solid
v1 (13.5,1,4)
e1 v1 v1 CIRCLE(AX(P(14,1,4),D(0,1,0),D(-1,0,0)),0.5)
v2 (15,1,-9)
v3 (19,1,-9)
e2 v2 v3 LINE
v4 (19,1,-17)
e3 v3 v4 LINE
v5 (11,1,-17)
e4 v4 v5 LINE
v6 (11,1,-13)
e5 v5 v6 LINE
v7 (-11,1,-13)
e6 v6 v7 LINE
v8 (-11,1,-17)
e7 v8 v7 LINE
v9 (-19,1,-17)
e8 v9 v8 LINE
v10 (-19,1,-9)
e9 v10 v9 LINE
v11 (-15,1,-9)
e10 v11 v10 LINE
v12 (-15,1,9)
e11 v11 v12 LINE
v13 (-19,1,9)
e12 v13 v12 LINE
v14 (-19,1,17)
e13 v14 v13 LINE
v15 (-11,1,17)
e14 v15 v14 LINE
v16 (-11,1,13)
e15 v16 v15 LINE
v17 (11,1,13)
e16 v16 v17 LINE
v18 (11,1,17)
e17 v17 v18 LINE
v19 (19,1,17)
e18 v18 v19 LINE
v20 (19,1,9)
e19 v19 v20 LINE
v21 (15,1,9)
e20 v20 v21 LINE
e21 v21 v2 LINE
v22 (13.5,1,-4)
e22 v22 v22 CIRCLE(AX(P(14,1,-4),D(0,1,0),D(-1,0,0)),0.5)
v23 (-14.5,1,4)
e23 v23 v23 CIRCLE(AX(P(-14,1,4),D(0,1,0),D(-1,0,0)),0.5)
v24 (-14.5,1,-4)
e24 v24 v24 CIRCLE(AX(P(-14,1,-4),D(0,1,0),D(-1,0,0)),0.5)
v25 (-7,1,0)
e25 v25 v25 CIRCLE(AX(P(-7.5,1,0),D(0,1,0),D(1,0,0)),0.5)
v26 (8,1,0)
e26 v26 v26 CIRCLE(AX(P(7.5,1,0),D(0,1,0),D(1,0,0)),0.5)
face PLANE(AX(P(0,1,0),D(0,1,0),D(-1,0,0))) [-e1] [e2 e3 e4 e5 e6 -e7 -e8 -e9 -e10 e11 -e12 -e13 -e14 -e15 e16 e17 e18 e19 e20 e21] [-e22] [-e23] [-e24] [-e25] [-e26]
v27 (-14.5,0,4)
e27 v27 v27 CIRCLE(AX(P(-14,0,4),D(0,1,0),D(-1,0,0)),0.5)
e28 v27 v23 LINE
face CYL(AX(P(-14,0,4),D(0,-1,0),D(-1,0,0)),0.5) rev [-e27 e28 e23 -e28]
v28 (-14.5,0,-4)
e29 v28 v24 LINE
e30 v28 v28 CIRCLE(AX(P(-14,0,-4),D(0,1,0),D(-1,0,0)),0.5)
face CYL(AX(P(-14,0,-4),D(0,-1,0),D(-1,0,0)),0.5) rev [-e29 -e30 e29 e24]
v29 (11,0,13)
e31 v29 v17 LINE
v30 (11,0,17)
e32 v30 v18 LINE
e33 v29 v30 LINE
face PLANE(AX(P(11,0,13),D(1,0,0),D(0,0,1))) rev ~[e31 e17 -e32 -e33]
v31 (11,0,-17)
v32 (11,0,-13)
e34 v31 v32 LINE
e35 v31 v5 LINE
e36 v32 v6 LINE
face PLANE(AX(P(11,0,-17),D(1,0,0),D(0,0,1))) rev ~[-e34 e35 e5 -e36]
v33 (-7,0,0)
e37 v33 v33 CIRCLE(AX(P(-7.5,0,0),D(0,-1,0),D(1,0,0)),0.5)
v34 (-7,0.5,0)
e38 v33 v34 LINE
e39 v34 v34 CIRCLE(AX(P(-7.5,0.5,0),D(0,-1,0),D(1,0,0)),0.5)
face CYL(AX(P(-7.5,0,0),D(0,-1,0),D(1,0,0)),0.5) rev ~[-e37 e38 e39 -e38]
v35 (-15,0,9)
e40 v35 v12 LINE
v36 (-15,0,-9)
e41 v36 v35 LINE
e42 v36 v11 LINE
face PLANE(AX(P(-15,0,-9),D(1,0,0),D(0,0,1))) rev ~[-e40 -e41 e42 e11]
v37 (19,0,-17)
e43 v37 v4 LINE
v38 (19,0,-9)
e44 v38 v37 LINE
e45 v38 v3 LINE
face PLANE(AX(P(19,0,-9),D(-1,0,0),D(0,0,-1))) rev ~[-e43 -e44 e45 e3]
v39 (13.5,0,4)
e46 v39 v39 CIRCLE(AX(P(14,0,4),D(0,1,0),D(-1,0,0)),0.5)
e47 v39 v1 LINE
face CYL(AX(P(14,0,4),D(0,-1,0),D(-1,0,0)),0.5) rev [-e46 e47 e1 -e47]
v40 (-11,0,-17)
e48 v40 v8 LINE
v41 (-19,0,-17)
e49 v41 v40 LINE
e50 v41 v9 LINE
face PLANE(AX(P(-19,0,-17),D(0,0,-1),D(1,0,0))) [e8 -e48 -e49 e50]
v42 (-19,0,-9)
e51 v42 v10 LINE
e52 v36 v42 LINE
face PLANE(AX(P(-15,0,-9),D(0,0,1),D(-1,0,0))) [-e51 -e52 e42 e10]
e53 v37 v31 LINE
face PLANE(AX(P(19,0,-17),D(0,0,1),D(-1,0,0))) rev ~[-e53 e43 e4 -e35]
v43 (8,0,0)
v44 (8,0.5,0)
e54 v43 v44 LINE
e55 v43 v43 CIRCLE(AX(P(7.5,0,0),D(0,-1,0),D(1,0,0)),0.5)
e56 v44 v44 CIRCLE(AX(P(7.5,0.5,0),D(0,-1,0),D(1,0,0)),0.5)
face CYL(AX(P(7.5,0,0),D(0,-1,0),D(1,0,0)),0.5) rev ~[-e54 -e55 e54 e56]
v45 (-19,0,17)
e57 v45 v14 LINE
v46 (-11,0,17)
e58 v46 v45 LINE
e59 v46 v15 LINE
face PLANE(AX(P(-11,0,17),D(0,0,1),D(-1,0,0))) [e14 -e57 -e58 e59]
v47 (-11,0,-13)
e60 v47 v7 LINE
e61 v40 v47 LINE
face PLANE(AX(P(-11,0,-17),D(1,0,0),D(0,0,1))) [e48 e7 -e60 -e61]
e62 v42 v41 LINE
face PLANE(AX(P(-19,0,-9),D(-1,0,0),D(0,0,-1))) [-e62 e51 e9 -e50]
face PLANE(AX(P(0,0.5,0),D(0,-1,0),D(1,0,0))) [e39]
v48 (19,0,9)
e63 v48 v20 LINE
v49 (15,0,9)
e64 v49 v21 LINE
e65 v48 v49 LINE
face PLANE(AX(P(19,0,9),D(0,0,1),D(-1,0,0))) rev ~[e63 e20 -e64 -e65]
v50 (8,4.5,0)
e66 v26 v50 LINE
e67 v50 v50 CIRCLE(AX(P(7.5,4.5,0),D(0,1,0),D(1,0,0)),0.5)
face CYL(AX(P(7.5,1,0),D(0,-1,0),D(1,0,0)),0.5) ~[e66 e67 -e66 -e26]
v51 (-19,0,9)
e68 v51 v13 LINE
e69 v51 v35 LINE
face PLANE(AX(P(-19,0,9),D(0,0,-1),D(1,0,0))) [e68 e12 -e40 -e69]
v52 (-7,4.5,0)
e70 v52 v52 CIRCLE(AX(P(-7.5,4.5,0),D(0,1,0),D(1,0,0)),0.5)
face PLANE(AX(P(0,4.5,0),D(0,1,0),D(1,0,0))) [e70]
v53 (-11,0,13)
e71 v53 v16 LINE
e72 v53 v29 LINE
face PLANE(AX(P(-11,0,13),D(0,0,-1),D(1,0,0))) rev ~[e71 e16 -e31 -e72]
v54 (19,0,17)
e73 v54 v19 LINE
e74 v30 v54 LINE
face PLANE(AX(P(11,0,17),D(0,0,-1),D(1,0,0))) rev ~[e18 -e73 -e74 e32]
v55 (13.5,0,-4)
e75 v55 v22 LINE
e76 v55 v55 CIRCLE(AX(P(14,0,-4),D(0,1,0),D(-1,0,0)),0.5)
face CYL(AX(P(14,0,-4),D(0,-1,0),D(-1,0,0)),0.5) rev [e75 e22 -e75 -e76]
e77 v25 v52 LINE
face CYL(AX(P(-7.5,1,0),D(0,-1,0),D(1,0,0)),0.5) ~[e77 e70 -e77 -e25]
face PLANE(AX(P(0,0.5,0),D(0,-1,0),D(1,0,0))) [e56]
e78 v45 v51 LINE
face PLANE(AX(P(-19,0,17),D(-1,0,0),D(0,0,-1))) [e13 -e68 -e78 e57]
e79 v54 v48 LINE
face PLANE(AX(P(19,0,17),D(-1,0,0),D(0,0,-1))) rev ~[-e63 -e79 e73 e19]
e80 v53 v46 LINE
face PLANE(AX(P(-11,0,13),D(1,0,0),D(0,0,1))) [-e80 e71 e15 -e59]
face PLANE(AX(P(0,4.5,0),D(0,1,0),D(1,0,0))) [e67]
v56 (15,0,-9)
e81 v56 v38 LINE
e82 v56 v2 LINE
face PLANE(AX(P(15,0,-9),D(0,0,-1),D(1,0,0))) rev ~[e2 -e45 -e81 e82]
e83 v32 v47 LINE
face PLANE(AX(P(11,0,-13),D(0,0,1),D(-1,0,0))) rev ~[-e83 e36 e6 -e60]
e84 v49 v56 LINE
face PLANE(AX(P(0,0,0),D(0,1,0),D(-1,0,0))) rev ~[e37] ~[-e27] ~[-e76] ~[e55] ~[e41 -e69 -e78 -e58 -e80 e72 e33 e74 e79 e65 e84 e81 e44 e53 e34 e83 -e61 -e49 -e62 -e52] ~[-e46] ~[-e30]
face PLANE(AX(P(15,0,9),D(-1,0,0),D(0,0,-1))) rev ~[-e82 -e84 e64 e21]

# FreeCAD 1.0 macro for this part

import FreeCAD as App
import Part
import Sketcher

doc = App.newDocument("Part")
params = doc.addObject("Spreadsheet::Sheet", "Params")
for row, (alias, value) in enumerate([
    ("sketch1_diameter", "1 mm"),
    ("sketch1_width", "8 mm"),
    ("pad1_length", "1 mm"),
    ("sketch2_diameter", "1 mm"),
    ("pad2_length", "3.5 mm"),
    ("sketch3_diameter", "1 mm"),
    ("pocket1_length", "0.5 mm"),
], start=1):
    params.set(f"A{row}", alias)
    params.set(f"B{row}", "=" + value)
    params.setAlias(f"B{row}", alias)

body = doc.addObject("PartDesign::Body", "Body")

# Sketch on XZ plane
sketch1 = doc.addObject("Sketcher::SketchObject", "Sketch")
body.addObject(sketch1)
sketch1.AttachmentSupport = (doc.XZ_Plane, [""])
sketch1.MapMode = "FlatFace"
sketch1.addGeometry(Part.LineSegment(App.Vector(-15, 9, 0), App.Vector(-19, 9, 0)), False)
sketch1.addGeometry(Part.LineSegment(App.Vector(-19, 9, 0), App.Vector(-19, 17, 0)), False)
sketch1.addGeometry(Part.LineSegment(App.Vector(-19, 17, 0), App.Vector(-11, 17, 0)), False)
sketch1.addGeometry(Part.LineSegment(App.Vector(-11, 17, 0), App.Vector(-11, 13, 0)), False)
sketch1.addGeometry(Part.LineSegment(App.Vector(-11, 13, 0), App.Vector(11, 13, 0)), False)
sketch1.addGeometry(Part.LineSegment(App.Vector(11, 13, 0), App.Vector(11, 17, 0)), False)
sketch1.addGeometry(Part.LineSegment(App.Vector(11, 17, 0), App.Vector(19, 17, 0)), False)
sketch1.addGeometry(Part.LineSegment(App.Vector(19, 17, 0), App.Vector(19, 9, 0)), False)
sketch1.addGeometry(Part.LineSegment(App.Vector(19, 9, 0), App.Vector(15, 9, 0)), False)
sketch1.addGeometry(Part.LineSegment(App.Vector(15, 9, 0), App.Vector(15, -9, 0)), False)
sketch1.addGeometry(Part.LineSegment(App.Vector(15, -9, 0), App.Vector(19, -9, 0)), False)
sketch1.addGeometry(Part.LineSegment(App.Vector(19, -9, 0), App.Vector(19, -17, 0)), False)
sketch1.addGeometry(Part.LineSegment(App.Vector(19, -17, 0), App.Vector(11, -17, 0)), False)
sketch1.addGeometry(Part.LineSegment(App.Vector(11, -17, 0), App.Vector(11, -13, 0)), False)
sketch1.addGeometry(Part.LineSegment(App.Vector(11, -13, 0), App.Vector(-11, -13, 0)), False)
sketch1.addGeometry(Part.LineSegment(App.Vector(-11, -13, 0), App.Vector(-11, -17, 0)), False)
sketch1.addGeometry(Part.LineSegment(App.Vector(-11, -17, 0), App.Vector(-19, -17, 0)), False)
sketch1.addGeometry(Part.LineSegment(App.Vector(-19, -17, 0), App.Vector(-19, -9, 0)), False)
sketch1.addGeometry(Part.LineSegment(App.Vector(-19, -9, 0), App.Vector(-15, -9, 0)), False)
sketch1.addGeometry(Part.LineSegment(App.Vector(-15, -9, 0), App.Vector(-15, 9, 0)), False)
sketch1.addGeometry(Part.Circle(App.Vector(14, 4, 0), App.Vector(0, 0, 1), 0.5), False)
sketch1.addGeometry(Part.Circle(App.Vector(-14, 4, 0), App.Vector(0, 0, 1), 0.5), False)
sketch1.addGeometry(Part.Circle(App.Vector(14, -4, 0), App.Vector(0, 0, 1), 0.5), False)
sketch1.addGeometry(Part.Circle(App.Vector(-14, -4, 0), App.Vector(0, 0, 1), 0.5), False)
sketch1.addConstraint(Sketcher.Constraint("Coincident", 0, 2, 1, 1))
sketch1.addConstraint(Sketcher.Constraint("Coincident", 1, 2, 2, 1))
sketch1.addConstraint(Sketcher.Constraint("Coincident", 2, 2, 3, 1))
sketch1.addConstraint(Sketcher.Constraint("Coincident", 3, 2, 4, 1))
sketch1.addConstraint(Sketcher.Constraint("Coincident", 4, 2, 5, 1))
sketch1.addConstraint(Sketcher.Constraint("Coincident", 5, 2, 6, 1))
sketch1.addConstraint(Sketcher.Constraint("Coincident", 6, 2, 7, 1))
sketch1.addConstraint(Sketcher.Constraint("Coincident", 7, 2, 8, 1))
sketch1.addConstraint(Sketcher.Constraint("Coincident", 8, 2, 9, 1))
sketch1.addConstraint(Sketcher.Constraint("Coincident", 9, 2, 10, 1))
sketch1.addConstraint(Sketcher.Constraint("Coincident", 10, 2, 11, 1))
sketch1.addConstraint(Sketcher.Constraint("Coincident", 11, 2, 12, 1))
sketch1.addConstraint(Sketcher.Constraint("Coincident", 12, 2, 13, 1))
sketch1.addConstraint(Sketcher.Constraint("Coincident", 13, 2, 14, 1))
sketch1.addConstraint(Sketcher.Constraint("Coincident", 14, 2, 15, 1))
sketch1.addConstraint(Sketcher.Constraint("Coincident", 15, 2, 16, 1))
sketch1.addConstraint(Sketcher.Constraint("Coincident", 16, 2, 17, 1))
sketch1.addConstraint(Sketcher.Constraint("Coincident", 17, 2, 18, 1))
sketch1.addConstraint(Sketcher.Constraint("Coincident", 18, 2, 19, 1))
sketch1.addConstraint(Sketcher.Constraint("Coincident", 19, 2, 0, 1))
sketch1.addConstraint(Sketcher.Constraint("Horizontal", 0))
sketch1.addConstraint(Sketcher.Constraint("Vertical", 1))
sketch1.addConstraint(Sketcher.Constraint("Horizontal", 2))
sketch1.addConstraint(Sketcher.Constraint("Vertical", 3))
sketch1.addConstraint(Sketcher.Constraint("Horizontal", 4))
sketch1.addConstraint(Sketcher.Constraint("Vertical", 5))
sketch1.addConstraint(Sketcher.Constraint("Horizontal", 6))
sketch1.addConstraint(Sketcher.Constraint("Vertical", 7))
sketch1.addConstraint(Sketcher.Constraint("Horizontal", 8))
sketch1.addConstraint(Sketcher.Constraint("Vertical", 9))
sketch1.addConstraint(Sketcher.Constraint("Horizontal", 10))
sketch1.addConstraint(Sketcher.Constraint("Vertical", 11))
sketch1.addConstraint(Sketcher.Constraint("Horizontal", 12))
sketch1.addConstraint(Sketcher.Constraint("Vertical", 13))
sketch1.addConstraint(Sketcher.Constraint("Horizontal", 14))
sketch1.addConstraint(Sketcher.Constraint("Vertical", 15))
sketch1.addConstraint(Sketcher.Constraint("Horizontal", 16))
sketch1.addConstraint(Sketcher.Constraint("Vertical", 17))
sketch1.addConstraint(Sketcher.Constraint("Horizontal", 18))
sketch1.addConstraint(Sketcher.Constraint("Vertical", 19))
sketch1.addConstraint(Sketcher.Constraint("Equal", 20, 21))
sketch1.addConstraint(Sketcher.Constraint("Equal", 21, 22))
sketch1.addConstraint(Sketcher.Constraint("Equal", 22, 23))
sketch1.addConstraint(Sketcher.Constraint("Symmetric", 21, 3, 22, 3, -1, 1))
sketch1.addConstraint(Sketcher.Constraint("Symmetric", 20, 3, 23, 3, -1, 1))
sketch1.addConstraint(Sketcher.Constraint("Symmetric", 0, 2, 10, 2, -1, 1))
sketch1.addConstraint(Sketcher.Constraint("Symmetric", 2, 2, 12, 2, -1, 1))
sketch1.addConstraint(Sketcher.Constraint("Symmetric", 4, 2, 14, 2, -1, 1))
sketch1.addConstraint(Sketcher.Constraint("Symmetric", 6, 2, 16, 2, -1, 1))
sketch1.addConstraint(Sketcher.Constraint("Symmetric", 8, 2, 18, 2, -1, 1))
sketch1.addConstraint(Sketcher.Constraint("Symmetric", 20, 3, 21, 3, -2))
sketch1.addConstraint(Sketcher.Constraint("Symmetric", 2, 2, 5, 2, -2))
sketch1.addConstraint(Sketcher.Constraint("Symmetric", 0, 2, 7, 2, -2))
sketch1.addConstraint(Sketcher.Constraint("Equal", 16, 1))
sketch1.addConstraint(Sketcher.Constraint("Equal", 18, 3))
sketch1.addConstraint(Sketcher.Constraint("Diameter", 20, 1.0))
sketch1.addConstraint(Sketcher.Constraint("DistanceX", 2, 1, 2, 2, 8.0))
sketch1.addConstraint(Sketcher.Constraint("DistanceY", -1, 1, 0, 2, 9.0))
sketch1.addConstraint(Sketcher.Constraint("DistanceY", 22, 3, 20, 3, 8.0))
sketch1.addConstraint(Sketcher.Constraint("DistanceY", 21, 3, 3, 2, 9.0))
sketch1.addConstraint(Sketcher.Constraint("DistanceX", 2, 2, 6, 2, 30.0))
sketch1.addConstraint(Sketcher.Constraint("DistanceX", 20, 3, 8, 2, 1.0))
sketch1.setExpression("Constraints[55]", "Params.sketch1_diameter")
sketch1.setExpression("Constraints[56]", "Params.sketch1_width")
pad1 = doc.addObject("PartDesign::Pad", "Pad")
body.addObject(pad1)
pad1.Profile = sketch1
pad1.setExpression("Length", "Params.pad1_length")
pad1.Reversed = True

# Sketch on XZ plane
sketch2 = doc.addObject("Sketcher::SketchObject", "Sketch001")
body.addObject(sketch2)
sketch2.AttachmentSupport = (doc.XZ_Plane, [""])
sketch2.MapMode = "FlatFace"
sketch2.AttachmentOffset = App.Placement(App.Vector(0, 0, -1), App.Rotation())
sketch2.addGeometry(Part.Circle(App.Vector(-7.5, 0, 0), App.Vector(0, 0, 1), 0.5), False)
sketch2.addGeometry(Part.Circle(App.Vector(7.5, 0, 0), App.Vector(0, 0, 1), 0.5), False)
sketch2.addConstraint(Sketcher.Constraint("Equal", 0, 1))
sketch2.addConstraint(Sketcher.Constraint("Symmetric", 0, 3, 1, 3, -1, 1))
sketch2.addConstraint(Sketcher.Constraint("PointOnObject", 0, 3, -1))
sketch2.addConstraint(Sketcher.Constraint("Diameter", 0, 1.0))
sketch2.addConstraint(Sketcher.Constraint("DistanceX", 0, 3, -1, 1, 7.5))
sketch2.setExpression("Constraints[3]", "Params.sketch2_diameter")
pad2 = doc.addObject("PartDesign::Pad", "Pad001")
body.addObject(pad2)
pad2.Profile = sketch2
pad2.setExpression("Length", "Params.pad2_length")
pad2.Reversed = True

# Sketch on XZ plane
sketch3 = doc.addObject("Sketcher::SketchObject", "Sketch002")
body.addObject(sketch3)
sketch3.AttachmentSupport = (doc.XZ_Plane, [""])
sketch3.MapMode = "FlatFace"
sketch3.addGeometry(Part.Circle(App.Vector(-7.5, 0, 0), App.Vector(0, 0, 1), 0.5), False)
sketch3.addGeometry(Part.Circle(App.Vector(7.5, 0, 0), App.Vector(0, 0, 1), 0.5), False)
sketch3.addConstraint(Sketcher.Constraint("Equal", 0, 1))
sketch3.addConstraint(Sketcher.Constraint("Symmetric", 0, 3, 1, 3, -1, 1))
sketch3.addConstraint(Sketcher.Constraint("PointOnObject", 0, 3, -1))
sketch3.addConstraint(Sketcher.Constraint("Diameter", 0, 1.0))
sketch3.addConstraint(Sketcher.Constraint("DistanceX", 0, 3, 1, 3, 15.0))
sketch3.setExpression("Constraints[3]", "Params.sketch3_diameter")
pocket1 = doc.addObject("PartDesign::Pocket", "Pocket")
body.addObject(pocket1)
pocket1.Profile = sketch3
pocket1.setExpression("Length", "Params.pocket1_length")

doc.recompute()
